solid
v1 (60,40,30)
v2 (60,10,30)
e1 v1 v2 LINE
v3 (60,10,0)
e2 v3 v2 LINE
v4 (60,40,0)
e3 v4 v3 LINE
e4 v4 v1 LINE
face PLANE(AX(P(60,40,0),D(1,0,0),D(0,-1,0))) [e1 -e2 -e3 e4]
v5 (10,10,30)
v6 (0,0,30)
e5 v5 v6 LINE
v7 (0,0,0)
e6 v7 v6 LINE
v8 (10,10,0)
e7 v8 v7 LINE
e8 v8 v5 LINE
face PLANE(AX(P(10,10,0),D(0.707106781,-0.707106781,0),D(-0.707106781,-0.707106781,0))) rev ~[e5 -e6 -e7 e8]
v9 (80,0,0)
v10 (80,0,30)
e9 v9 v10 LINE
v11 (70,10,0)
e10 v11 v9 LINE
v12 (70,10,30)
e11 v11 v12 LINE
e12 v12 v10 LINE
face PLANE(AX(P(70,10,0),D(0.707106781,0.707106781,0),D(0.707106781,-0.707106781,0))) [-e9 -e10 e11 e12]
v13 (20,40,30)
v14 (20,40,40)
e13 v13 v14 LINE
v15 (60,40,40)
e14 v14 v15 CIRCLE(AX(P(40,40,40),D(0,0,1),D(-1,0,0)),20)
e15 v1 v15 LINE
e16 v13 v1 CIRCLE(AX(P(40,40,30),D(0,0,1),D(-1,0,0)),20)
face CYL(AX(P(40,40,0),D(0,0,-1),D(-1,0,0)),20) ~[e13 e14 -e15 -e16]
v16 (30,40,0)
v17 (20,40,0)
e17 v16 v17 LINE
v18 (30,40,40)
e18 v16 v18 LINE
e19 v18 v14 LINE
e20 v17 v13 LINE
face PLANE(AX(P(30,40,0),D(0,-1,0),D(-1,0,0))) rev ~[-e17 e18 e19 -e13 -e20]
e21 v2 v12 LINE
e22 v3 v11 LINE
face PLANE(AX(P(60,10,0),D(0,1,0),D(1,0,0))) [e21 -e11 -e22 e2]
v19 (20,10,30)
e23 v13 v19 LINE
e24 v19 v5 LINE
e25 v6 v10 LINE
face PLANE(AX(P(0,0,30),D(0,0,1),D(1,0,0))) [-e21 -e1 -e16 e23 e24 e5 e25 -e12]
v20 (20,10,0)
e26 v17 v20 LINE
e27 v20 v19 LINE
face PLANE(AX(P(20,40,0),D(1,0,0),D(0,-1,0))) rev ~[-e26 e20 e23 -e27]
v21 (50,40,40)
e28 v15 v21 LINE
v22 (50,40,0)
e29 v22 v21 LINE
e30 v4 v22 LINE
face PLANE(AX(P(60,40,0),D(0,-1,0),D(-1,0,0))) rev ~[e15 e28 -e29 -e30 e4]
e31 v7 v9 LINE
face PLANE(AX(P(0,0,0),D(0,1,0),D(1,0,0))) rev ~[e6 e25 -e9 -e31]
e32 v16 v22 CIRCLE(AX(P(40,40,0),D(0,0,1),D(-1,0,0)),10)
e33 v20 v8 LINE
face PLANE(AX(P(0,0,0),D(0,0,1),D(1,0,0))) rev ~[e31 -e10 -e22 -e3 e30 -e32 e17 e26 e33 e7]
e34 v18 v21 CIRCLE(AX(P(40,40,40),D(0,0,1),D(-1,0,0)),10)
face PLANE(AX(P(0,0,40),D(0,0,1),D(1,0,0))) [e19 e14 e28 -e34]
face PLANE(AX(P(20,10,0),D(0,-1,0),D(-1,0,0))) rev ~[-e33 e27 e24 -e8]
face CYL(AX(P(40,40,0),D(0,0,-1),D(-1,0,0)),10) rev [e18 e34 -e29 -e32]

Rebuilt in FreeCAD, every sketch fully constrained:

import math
import FreeCAD as App
import Part
import Sketcher

V = App.Vector

doc = App.newDocument("Part")
body = doc.addObject("PartDesign::Body", "Body")

sketch1 = body.newObject("Sketcher::SketchObject", "Sketch")
sketch1.AttachmentSupport = (doc.getObject("XY_Plane"), [""])
sketch1.MapMode = "FlatFace"
sketch1.addGeometry([
    Part.LineSegment(V(30, 40, 0), V(20, 40, 0)),
    Part.ArcOfCircle(Part.Circle(V(40, 40, 0), V(0, 0, 1), 20), math.radians(180), math.radians(360)),
    Part.LineSegment(V(60, 40, 0), V(50, 40, 0)),
    Part.ArcOfCircle(Part.Circle(V(40, 40, 0), V(0, 0, 1), 10), math.radians(180), math.radians(360)),
], False)
sketch1.addConstraint([
    Sketcher.Constraint("Coincident", 0, 2, 1, 1),
    Sketcher.Constraint("Coincident", 1, 2, 2, 1),
    Sketcher.Constraint("Coincident", 2, 2, 3, 2),
    Sketcher.Constraint("Coincident", 3, 1, 0, 1),
    Sketcher.Constraint("Horizontal", 0),
    Sketcher.Constraint("Horizontal", 2),
    Sketcher.Constraint("Coincident", 3, 3, 1, 3),
    Sketcher.Constraint("Horizontal", 3, 3, 0, 2),
    Sketcher.Constraint("Horizontal", 0, 2, 1, 2),
    Sketcher.Constraint("Radius", 1, 20.0),
    Sketcher.Constraint("Radius", 3, 10.0),
    Sketcher.Constraint("DistanceX", -1, 1, 1, 3, 40.0),
    Sketcher.Constraint("DistanceY", -1, 1, 1, 3, 40.0),
])
pad1 = body.newObject("PartDesign::Pad", "Pad")
pad1.Profile = sketch1
pad1.Length = 40

sketch2 = body.newObject("Sketcher::SketchObject", "Sketch001")
sketch2.AttachmentSupport = (doc.getObject("XY_Plane"), [""])
sketch2.MapMode = "FlatFace"
sketch2.addGeometry([
    Part.LineSegment(V(10, 10, 0), V(0, 0, 0)),
    Part.LineSegment(V(0, 0, 0), V(80, 0, 0)),
    Part.LineSegment(V(80, 0, 0), V(70, 10, 0)),
    Part.LineSegment(V(70, 10, 0), V(60, 10, 0)),
    Part.LineSegment(V(60, 10, 0), V(60, 40, 0)),
    Part.ArcOfCircle(Part.Circle(V(40, 40, 0), V(0, 0, 1), 20), math.radians(180), math.radians(360)),
    Part.LineSegment(V(20, 40, 0), V(20, 10, 0)),
    Part.LineSegment(V(20, 10, 0), V(10, 10, 0)),
], False)
sketch2.addConstraint([
    Sketcher.Constraint("Coincident", 0, 2, 1, 1),
    Sketcher.Constraint("Coincident", 1, 2, 2, 1),
    Sketcher.Constraint("Coincident", 2, 2, 3, 1),
    Sketcher.Constraint("Coincident", 3, 2, 4, 1),
    Sketcher.Constraint("Tangent", 4, 2, 5, 2),
    Sketcher.Constraint("Tangent", 5, 1, 6, 1),
    Sketcher.Constraint("Coincident", 6, 2, 7, 1),
    Sketcher.Constraint("Coincident", 7, 2, 0, 1),
    Sketcher.Constraint("Horizontal", 1),
    Sketcher.Constraint("Horizontal", 3),
    Sketcher.Constraint("Vertical", 4),
    Sketcher.Constraint("Vertical", 6),
    Sketcher.Constraint("Horizontal", 7),
    Sketcher.Constraint("Coincident", 0, 2, -1, 1),
    Sketcher.Constraint("Perpendicular", 0, 2),
    Sketcher.Constraint("Horizontal", 3, 2, 6, 2),
    Sketcher.Constraint("Equal", 3, 7),
    Sketcher.Constraint("Equal", 0, 2),
    Sketcher.Constraint("Radius", 5, 20.0),
    Sketcher.Constraint("DistanceX", 1, 1, 1, 2, 80.0),
    Sketcher.Constraint("DistanceX", 3, 2, 3, 1, 10.0),
    Sketcher.Constraint("DistanceY", 4, 1, 4, 2, 30.0),
])
pad2 = body.newObject("PartDesign::Pad", "Pad001")
pad2.Profile = sketch2
pad2.Length = 30

doc.recompute()
